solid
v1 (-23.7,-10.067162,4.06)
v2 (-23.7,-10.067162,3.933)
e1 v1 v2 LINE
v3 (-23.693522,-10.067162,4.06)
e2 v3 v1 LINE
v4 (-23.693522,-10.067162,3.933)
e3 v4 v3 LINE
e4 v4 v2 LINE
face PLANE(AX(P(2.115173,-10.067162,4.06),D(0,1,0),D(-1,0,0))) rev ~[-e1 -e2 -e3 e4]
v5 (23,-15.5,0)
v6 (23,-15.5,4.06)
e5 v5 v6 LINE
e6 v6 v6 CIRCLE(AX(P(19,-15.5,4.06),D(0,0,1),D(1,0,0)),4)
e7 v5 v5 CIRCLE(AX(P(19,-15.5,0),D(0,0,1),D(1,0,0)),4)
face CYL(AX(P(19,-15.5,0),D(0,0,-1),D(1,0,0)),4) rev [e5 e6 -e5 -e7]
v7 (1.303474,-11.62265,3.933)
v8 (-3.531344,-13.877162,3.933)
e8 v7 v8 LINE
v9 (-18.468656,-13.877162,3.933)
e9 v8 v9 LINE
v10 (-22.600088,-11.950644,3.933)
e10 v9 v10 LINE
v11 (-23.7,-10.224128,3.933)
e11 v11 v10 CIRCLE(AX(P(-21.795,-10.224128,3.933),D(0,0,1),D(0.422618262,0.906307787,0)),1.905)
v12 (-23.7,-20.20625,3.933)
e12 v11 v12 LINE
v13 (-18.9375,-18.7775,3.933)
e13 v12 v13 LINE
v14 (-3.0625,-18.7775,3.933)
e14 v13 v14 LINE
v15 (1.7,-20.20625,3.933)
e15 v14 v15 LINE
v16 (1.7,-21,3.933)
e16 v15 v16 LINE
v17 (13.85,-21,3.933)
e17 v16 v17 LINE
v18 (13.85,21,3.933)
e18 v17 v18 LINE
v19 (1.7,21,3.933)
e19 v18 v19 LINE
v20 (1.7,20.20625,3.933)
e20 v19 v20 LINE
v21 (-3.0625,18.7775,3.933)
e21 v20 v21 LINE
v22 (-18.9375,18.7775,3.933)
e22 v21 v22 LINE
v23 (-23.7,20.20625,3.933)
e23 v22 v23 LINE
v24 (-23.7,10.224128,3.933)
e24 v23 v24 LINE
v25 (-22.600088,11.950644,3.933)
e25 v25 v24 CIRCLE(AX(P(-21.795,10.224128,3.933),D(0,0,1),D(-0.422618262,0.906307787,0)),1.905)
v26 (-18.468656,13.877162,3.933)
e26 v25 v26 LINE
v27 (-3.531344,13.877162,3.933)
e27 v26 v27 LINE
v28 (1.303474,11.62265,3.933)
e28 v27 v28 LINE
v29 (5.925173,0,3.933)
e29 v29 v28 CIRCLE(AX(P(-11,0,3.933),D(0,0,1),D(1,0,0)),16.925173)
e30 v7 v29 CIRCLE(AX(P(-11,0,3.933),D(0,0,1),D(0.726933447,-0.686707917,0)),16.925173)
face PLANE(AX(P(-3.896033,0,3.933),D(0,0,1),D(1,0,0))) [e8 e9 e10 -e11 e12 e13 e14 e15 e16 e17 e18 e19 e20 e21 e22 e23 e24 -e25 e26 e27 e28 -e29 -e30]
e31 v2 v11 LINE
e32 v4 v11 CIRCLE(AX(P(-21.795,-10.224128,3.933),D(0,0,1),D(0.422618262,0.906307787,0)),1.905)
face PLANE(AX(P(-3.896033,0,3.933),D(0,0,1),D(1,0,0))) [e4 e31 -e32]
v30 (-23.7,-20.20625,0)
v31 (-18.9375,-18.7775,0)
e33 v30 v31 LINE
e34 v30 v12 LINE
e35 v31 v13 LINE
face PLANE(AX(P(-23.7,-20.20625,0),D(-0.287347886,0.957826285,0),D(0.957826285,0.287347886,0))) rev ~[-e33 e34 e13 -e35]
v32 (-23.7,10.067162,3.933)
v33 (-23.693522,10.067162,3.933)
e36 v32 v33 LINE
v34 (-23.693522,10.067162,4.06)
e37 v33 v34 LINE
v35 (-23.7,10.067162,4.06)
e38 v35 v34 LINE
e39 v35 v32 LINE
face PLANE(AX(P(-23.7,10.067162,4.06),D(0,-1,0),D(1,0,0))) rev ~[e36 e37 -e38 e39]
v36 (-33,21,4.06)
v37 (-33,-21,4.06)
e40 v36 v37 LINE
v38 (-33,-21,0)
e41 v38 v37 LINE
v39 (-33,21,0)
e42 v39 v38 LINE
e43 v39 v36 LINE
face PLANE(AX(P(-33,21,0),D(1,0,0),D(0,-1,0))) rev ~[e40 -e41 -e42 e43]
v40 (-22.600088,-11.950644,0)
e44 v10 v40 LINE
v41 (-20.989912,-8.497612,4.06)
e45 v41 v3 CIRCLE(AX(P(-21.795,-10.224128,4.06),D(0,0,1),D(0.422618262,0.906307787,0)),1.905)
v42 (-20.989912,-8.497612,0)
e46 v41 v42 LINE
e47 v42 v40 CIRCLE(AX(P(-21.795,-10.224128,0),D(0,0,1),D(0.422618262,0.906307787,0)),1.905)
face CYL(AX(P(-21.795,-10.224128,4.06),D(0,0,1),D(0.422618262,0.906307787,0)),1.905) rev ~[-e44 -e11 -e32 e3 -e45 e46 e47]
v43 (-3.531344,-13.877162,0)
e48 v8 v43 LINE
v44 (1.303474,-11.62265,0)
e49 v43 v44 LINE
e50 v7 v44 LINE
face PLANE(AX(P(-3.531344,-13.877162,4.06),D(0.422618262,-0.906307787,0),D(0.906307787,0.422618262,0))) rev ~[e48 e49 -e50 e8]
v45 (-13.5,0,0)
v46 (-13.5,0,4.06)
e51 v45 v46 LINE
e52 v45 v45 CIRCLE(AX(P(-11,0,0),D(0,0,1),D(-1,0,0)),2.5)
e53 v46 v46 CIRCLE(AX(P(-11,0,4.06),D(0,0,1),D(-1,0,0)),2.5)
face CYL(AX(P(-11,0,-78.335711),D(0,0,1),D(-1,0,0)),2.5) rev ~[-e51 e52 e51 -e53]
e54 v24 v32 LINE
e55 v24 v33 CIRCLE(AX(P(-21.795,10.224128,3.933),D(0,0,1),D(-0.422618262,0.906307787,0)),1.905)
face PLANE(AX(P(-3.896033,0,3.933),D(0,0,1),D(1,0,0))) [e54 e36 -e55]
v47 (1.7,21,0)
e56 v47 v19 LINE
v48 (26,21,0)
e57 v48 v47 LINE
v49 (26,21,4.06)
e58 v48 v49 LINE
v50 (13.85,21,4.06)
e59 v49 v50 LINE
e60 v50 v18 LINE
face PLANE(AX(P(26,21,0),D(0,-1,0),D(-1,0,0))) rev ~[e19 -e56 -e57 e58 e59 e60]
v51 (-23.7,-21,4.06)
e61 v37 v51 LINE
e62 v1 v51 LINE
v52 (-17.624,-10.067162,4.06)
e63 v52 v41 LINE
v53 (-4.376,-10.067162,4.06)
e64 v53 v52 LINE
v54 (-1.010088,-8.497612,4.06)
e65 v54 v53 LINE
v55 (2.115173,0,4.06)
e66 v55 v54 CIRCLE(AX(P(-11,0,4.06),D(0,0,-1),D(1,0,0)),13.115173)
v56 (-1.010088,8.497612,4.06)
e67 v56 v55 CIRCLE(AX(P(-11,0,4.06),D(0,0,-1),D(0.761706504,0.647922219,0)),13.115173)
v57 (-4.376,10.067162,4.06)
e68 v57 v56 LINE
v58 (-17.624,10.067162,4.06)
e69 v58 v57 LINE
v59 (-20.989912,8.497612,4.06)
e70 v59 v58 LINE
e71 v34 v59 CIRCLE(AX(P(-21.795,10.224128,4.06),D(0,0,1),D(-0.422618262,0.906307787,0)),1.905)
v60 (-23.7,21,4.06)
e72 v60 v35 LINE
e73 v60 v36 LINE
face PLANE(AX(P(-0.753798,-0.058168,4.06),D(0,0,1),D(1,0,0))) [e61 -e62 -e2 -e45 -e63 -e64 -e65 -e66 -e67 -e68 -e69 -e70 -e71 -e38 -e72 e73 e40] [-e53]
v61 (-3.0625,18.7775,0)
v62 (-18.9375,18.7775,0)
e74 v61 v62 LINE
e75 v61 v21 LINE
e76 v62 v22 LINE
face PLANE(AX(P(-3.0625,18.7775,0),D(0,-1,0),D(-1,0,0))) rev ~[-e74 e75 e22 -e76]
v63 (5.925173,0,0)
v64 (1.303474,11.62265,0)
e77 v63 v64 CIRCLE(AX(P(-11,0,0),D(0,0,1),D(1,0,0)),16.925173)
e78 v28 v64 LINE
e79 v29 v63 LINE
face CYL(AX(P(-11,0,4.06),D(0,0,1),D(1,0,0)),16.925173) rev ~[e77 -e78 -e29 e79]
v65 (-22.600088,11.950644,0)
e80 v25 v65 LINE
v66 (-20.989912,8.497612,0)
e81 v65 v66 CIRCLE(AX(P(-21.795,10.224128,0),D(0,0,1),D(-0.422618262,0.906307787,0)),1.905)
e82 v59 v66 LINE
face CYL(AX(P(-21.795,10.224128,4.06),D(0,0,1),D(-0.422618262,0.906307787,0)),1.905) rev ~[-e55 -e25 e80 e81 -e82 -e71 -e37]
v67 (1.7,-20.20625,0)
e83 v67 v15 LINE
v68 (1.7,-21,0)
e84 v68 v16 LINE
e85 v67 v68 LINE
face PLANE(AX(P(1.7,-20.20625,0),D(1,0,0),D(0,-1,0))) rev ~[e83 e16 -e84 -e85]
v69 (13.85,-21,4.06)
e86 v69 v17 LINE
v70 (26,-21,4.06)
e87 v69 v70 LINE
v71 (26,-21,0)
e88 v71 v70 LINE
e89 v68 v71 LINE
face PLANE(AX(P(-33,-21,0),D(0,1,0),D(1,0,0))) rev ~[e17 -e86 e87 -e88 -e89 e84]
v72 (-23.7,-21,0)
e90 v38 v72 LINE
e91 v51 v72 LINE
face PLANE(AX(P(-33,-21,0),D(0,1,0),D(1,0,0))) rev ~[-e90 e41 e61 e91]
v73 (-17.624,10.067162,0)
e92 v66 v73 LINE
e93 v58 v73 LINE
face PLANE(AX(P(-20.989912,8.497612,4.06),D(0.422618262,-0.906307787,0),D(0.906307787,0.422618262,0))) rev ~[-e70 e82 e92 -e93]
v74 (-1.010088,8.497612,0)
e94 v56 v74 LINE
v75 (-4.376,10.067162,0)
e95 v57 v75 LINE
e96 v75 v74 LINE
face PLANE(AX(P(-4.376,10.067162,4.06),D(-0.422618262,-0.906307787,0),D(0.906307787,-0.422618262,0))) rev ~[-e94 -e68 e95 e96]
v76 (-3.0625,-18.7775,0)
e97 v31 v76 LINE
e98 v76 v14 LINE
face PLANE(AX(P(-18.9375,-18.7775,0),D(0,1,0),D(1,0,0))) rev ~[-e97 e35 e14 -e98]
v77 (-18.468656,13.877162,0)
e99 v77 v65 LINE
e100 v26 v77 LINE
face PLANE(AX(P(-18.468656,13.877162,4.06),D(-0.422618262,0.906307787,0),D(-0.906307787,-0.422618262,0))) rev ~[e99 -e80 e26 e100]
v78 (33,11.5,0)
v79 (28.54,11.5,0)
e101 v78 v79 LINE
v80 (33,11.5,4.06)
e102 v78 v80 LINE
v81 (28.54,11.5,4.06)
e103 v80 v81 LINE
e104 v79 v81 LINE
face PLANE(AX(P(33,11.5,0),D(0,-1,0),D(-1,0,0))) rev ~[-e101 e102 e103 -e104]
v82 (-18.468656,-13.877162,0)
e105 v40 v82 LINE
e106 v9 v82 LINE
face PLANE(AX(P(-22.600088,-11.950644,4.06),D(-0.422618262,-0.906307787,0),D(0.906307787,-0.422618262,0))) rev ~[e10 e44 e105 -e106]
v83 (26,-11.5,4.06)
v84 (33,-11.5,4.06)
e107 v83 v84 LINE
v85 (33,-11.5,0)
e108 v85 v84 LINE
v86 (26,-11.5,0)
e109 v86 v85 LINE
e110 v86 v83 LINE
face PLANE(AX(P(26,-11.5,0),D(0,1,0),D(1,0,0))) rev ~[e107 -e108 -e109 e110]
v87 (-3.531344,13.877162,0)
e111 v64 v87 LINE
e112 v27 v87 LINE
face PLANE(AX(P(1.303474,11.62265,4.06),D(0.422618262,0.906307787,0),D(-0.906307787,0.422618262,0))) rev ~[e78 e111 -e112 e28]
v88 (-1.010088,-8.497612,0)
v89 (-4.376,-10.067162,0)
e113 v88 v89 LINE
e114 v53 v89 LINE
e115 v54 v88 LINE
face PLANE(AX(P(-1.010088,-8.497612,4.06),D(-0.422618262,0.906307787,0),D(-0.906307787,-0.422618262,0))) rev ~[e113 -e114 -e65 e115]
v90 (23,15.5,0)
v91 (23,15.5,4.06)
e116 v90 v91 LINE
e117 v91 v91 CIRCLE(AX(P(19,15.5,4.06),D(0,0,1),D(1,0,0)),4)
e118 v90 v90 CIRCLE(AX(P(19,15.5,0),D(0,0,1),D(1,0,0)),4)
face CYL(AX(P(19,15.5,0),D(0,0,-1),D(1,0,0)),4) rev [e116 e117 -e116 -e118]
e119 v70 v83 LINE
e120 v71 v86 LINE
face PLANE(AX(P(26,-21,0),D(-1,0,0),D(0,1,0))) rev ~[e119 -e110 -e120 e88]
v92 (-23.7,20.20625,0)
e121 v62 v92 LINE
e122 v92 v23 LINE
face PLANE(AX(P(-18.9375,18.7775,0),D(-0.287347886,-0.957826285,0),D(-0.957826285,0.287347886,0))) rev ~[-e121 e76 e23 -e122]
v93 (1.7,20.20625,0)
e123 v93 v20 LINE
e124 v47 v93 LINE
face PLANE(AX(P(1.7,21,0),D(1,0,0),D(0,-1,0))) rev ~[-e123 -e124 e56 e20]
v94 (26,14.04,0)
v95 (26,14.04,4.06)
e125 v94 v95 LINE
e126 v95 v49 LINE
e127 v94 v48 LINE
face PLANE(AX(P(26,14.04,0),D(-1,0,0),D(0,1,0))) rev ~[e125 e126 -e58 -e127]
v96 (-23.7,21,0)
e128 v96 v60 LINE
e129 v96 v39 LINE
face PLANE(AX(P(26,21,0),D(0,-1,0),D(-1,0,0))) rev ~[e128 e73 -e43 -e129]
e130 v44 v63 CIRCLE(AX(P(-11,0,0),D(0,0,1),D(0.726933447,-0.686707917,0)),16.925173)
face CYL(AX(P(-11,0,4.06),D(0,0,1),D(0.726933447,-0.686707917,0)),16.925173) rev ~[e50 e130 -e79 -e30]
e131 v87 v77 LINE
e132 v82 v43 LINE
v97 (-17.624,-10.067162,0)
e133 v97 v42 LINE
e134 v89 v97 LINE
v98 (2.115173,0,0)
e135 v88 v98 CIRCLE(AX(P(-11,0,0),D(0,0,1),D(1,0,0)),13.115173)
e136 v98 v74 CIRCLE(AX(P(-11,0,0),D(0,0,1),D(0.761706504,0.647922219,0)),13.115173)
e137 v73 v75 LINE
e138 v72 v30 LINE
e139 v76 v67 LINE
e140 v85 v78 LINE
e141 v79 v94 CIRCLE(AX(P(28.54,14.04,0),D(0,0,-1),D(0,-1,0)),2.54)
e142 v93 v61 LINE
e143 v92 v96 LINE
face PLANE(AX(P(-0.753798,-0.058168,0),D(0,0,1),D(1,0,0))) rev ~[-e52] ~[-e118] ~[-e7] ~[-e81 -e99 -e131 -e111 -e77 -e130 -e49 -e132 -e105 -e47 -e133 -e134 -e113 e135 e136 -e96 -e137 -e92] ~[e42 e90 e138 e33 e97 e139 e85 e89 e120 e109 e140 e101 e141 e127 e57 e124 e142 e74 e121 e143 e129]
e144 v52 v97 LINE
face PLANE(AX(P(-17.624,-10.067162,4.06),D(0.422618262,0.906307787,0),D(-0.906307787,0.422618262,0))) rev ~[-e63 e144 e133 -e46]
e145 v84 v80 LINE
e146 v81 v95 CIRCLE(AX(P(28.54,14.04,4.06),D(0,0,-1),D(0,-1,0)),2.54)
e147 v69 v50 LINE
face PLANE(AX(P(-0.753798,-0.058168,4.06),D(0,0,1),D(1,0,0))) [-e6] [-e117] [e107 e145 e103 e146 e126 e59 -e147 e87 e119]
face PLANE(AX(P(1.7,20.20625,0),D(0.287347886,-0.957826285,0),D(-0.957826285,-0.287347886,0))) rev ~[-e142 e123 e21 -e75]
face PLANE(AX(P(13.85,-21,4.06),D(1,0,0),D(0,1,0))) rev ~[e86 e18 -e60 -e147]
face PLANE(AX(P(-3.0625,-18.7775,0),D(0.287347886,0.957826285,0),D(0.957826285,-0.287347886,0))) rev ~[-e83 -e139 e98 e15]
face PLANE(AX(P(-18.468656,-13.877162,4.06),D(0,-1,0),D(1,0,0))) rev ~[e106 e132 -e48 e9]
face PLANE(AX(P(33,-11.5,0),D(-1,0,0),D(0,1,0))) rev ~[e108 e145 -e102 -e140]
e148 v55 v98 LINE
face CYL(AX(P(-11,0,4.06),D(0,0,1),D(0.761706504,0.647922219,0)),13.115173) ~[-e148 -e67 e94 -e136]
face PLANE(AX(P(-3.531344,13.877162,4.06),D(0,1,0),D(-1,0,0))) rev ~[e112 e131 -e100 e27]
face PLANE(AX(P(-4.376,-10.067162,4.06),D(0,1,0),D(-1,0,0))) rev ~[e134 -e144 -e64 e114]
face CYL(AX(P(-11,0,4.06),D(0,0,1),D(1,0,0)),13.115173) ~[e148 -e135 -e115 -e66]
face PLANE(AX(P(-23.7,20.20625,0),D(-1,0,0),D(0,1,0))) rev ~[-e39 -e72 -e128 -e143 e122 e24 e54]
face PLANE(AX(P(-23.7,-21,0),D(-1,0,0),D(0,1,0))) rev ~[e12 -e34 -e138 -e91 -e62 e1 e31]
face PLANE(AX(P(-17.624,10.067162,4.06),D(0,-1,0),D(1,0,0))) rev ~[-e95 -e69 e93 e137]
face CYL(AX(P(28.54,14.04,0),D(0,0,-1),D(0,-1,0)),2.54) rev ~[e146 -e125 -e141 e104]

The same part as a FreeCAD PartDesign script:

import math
import FreeCAD as App
import Part
import Sketcher
from FreeCAD import Vector
Q = App.Units.Quantity


def add_polygon(sketch, points):
    """Adds a closed chain of lines whose ends are joined by coincident constraints."""
    first, n = sketch.GeometryCount, len(points)
    for a, b in zip(points, points[1:] + points[:1]):
        sketch.addGeometry(Part.LineSegment(App.Vector(*a, 0), App.Vector(*b, 0)), False)
    for i in range(n):
        sketch.addConstraint(Sketcher.Constraint("Coincident", first + i, 2, first + (i + 1) % n, 1))

doc = App.newDocument("Part")
body = doc.addObject("PartDesign::Body", "Body")

# Sketch on XY plane
sketch1 = doc.addObject("Sketcher::SketchObject", "Sketch")
body.addObject(sketch1)
sketch1.AttachmentSupport = (doc.XY_Plane, [""])
sketch1.MapMode = "FlatFace"
sketch1.addGeometry([
    Part.LineSegment(Vector(26, 14, 0), Vector(26, 21, 0)),  # 0
    Part.LineSegment(Vector(26, 21, 0), Vector(-33, 21, 0)),  # 1
    Part.LineSegment(Vector(-33, 21, 0), Vector(-33, -21, 0)),  # 2
    Part.LineSegment(Vector(-33, -21, 0), Vector(26, -21, 0)),  # 3
    Part.LineSegment(Vector(26, -21, 0), Vector(26, -11.5, 0)),  # 4
    Part.LineSegment(Vector(26, -11.5, 0), Vector(33, -11.5, 0)),  # 5
    Part.LineSegment(Vector(33, -11.5, 0), Vector(33, 11.5, 0)),  # 6
    Part.LineSegment(Vector(33, 11.5, 0), Vector(28.5, 11.5, 0)),  # 7
    Part.ArcOfCircle(Part.Circle(Vector(28.5, 14, 0), Vector(0, 0, 1), 2.5), math.radians(180), math.radians(270)),  # 8
    Part.Circle(Vector(19, -15.5, 0), Vector(0, 0, 1), 4),  # 9
    Part.Circle(Vector(19, 15.5, 0), Vector(0, 0, 1), 4),  # 10
], False)
sketch1.addConstraint([
    Sketcher.Constraint("Coincident", 0, 2, 1, 1),
    Sketcher.Constraint("Coincident", 1, 2, 2, 1),
    Sketcher.Constraint("Coincident", 2, 2, 3, 1),
    Sketcher.Constraint("Coincident", 3, 2, 4, 1),
    Sketcher.Constraint("Coincident", 4, 2, 5, 1),
    Sketcher.Constraint("Coincident", 5, 2, 6, 1),
    Sketcher.Constraint("Coincident", 6, 2, 7, 1),
    Sketcher.Constraint("Tangent", 7, 2, 8, 2),
    Sketcher.Constraint("Tangent", 8, 1, 0, 1),
    Sketcher.Constraint("Vertical", 0),
    Sketcher.Constraint("Horizontal", 1),
    Sketcher.Constraint("Vertical", 2),
    Sketcher.Constraint("Horizontal", 3),
    Sketcher.Constraint("Vertical", 4),
    Sketcher.Constraint("Horizontal", 5),
    Sketcher.Constraint("Vertical", 6),
    Sketcher.Constraint("Horizontal", 7),
    Sketcher.Constraint("Equal", 9, 10),
    Sketcher.Constraint("Symmetric", 9, 3, 10, 3, -1),
    Sketcher.Constraint("Symmetric", 0, 2, 3, 2, -1),
    Sketcher.Constraint("Diameter", 9, Q("8 mm")),
    Sketcher.Constraint("DistanceX", 1, 2, 1, 1, Q("59 mm")),
    Sketcher.Constraint("DistanceX", 5, 1, 5, 2, Q("7 mm")),
    Sketcher.Constraint("DistanceY", 2, 2, 2, 1, Q("42 mm")),
    Sketcher.Constraint("DistanceY", 6, 1, 6, 2, Q("23 mm")),
    Sketcher.Constraint("Radius", 8, Q("2.54 mm")),
    Sketcher.Constraint("DistanceY", 4, 1, 4, 2, Q("9.5 mm")),
    Sketcher.Constraint("DistanceX", -1, 1, 9, 3, Q("19 mm")),
    Sketcher.Constraint("DistanceX", -1, 1, 0, 2, Q("26 mm")),
    Sketcher.Constraint("DistanceY", 9, 3, 10, 3, Q("31 mm")),
])
pad1 = doc.addObject("PartDesign::Pad", "Pad")
body.addObject(pad1)
pad1.Profile = sketch1
pad1.Length = 4.06

# Sketch on XY plane
sketch2 = doc.addObject("Sketcher::SketchObject", "Sketch001")
body.addObject(sketch2)
sketch2.AttachmentSupport = (doc.XY_Plane, [""])
sketch2.MapMode = "FlatFace"
sketch2.addGeometry(Part.Circle(Vector(-11, 0, 0), Vector(0, 0, 1), 2.5), False)
sketch2.addConstraint([
    Sketcher.Constraint("PointOnObject", 0, 3, -1),
    Sketcher.Constraint("Diameter", 0, Q("5 mm")),
    Sketcher.Constraint("DistanceX", 0, 3, -1, 1, Q("11 mm")),
])
doc.recompute()
hole = doc.addObject("PartDesign::Hole", "Hole")
body.addObject(hole)
hole.Profile = sketch2
hole.ThreadType = "None"
hole.Diameter = 5
hole.DepthType = "ThroughAll"
hole.Reversed = True

# Sketch on XY plane
sketch3 = doc.addObject("Sketcher::SketchObject", "Sketch002")
body.addObject(sketch3)
sketch3.AttachmentSupport = (doc.XY_Plane, [""])
sketch3.MapMode = "FlatFace"
add_polygon(sketch3, [(-23.7, 20.2), (-23.7, 21), (1.7, 21), (1.7, 20.2), (-3.1, 18.8), (-18.9, 18.8)])  # lines 0-5
add_polygon(sketch3, [(1.7, -21), (-23.7, -21), (-23.7, -20.2), (-18.9, -18.8), (-3.1, -18.8), (1.7, -20.2)])  # lines 6-11
sketch3.addConstraint([
    Sketcher.Constraint("Vertical", 0),
    Sketcher.Constraint("Horizontal", 1),
    Sketcher.Constraint("Vertical", 2),
    Sketcher.Constraint("Horizontal", 4),
    Sketcher.Constraint("Horizontal", 6),
    Sketcher.Constraint("Vertical", 7),
    Sketcher.Constraint("Horizontal", 9),
    Sketcher.Constraint("Vertical", 11),
    Sketcher.Constraint("Symmetric", 0, 2, 6, 2, -1),
    Sketcher.Constraint("Symmetric", 4, 2, 8, 2, -1),
    Sketcher.Constraint("Symmetric", 2, 2, 10, 2, -1),
    Sketcher.Constraint("Parallel", 3, 8),
    Sketcher.Constraint("Parallel", 5, 10),
    Sketcher.Constraint("Horizontal", 2, 2, 5, 2),
    Sketcher.Constraint("Horizontal", 7, 2, 10, 2),
    Sketcher.Constraint("DistanceX", 1, 1, 1, 2, Q("25.4 mm")),
    Sketcher.Constraint("DistanceY", -1, 1, 0, 2, Q("21 mm")),
    Sketcher.Constraint("DistanceX", 0, 2, -1, 1, Q("23.7 mm")),
    Sketcher.Constraint("DistanceX", 4, 2, 4, 1, Q("15.875 mm")),
    Sketcher.Constraint("DistanceY", 8, 2, 4, 2, Q("37.555 mm")),
    Sketcher.Constraint("DistanceY", 0, 1, 0, 2, Q("0.79375 mm")),
])
pocket1 = doc.addObject("PartDesign::Pocket", "Pocket")
body.addObject(pocket1)
pocket1.Profile = sketch3
pocket1.Length = 25.4
pocket1.Reversed = True

# Sketch on XY plane
sketch4 = doc.addObject("Sketcher::SketchObject", "Sketch003")
body.addObject(sketch4)
sketch4.AttachmentSupport = (doc.XY_Plane, [""])
sketch4.MapMode = "FlatFace"
sketch4.AttachmentOffset = App.Placement(Vector(0, 0, 4.06), App.Rotation())
sketch4.addGeometry([
    Part.ArcOfCircle(Part.Circle(Vector(-21.8, 10.2, 0), Vector(0, 0, 1), 1.9), math.radians(115), math.radians(295)),  # 0
    Part.LineSegment(Vector(-21, 8.5, 0), Vector(-17.6, 10.1, 0)),  # 1
    Part.LineSegment(Vector(-17.6, 10.1, 0), Vector(-4.4, 10.1, 0)),  # 2
    Part.LineSegment(Vector(-4.4, 10.1, 0), Vector(-1, 8.5, 0)),  # 3
    Part.ArcOfCircle(Part.Circle(Vector(-11, 0, 0), Vector(0, 0, 1), 13.1), math.radians(0), math.radians(40)),  # 4
    Part.ArcOfCircle(Part.Circle(Vector(-11, 0, 0), Vector(0, 0, 1), 13.1), math.radians(-40), math.radians(0)),  # 5
    Part.LineSegment(Vector(-1, -8.5, 0), Vector(-4.4, -10.1, 0)),  # 6
    Part.LineSegment(Vector(-4.4, -10.1, 0), Vector(-17.6, -10.1, 0)),  # 7
    Part.LineSegment(Vector(-17.6, -10.1, 0), Vector(-21, -8.5, 0)),  # 8
    Part.ArcOfCircle(Part.Circle(Vector(-21.8, -10.2, 0), Vector(0, 0, 1), 1.9), math.radians(65), math.radians(245)),  # 9
    Part.LineSegment(Vector(-22.6, -12, 0), Vector(-18.5, -13.9, 0)),  # 10
    Part.LineSegment(Vector(-18.5, -13.9, 0), Vector(-3.5, -13.9, 0)),  # 11
    Part.LineSegment(Vector(-3.5, -13.9, 0), Vector(1.3, -11.6, 0)),  # 12
    Part.ArcOfCircle(Part.Circle(Vector(-11, 0, 0), Vector(0, 0, 1), 16.9), math.radians(-43), math.radians(0)),  # 13
    Part.ArcOfCircle(Part.Circle(Vector(-11, 0, 0), Vector(0, 0, 1), 16.9), math.radians(0), math.radians(43)),  # 14
    Part.LineSegment(Vector(1.3, 11.6, 0), Vector(-3.5, 13.9, 0)),  # 15
    Part.LineSegment(Vector(-3.5, 13.9, 0), Vector(-18.5, 13.9, 0)),  # 16
    Part.LineSegment(Vector(-18.5, 13.9, 0), Vector(-22.6, 12, 0)),  # 17
], False)
sketch4.addConstraint([
    Sketcher.Constraint("Tangent", 0, 2, 1, 1),
    Sketcher.Constraint("Coincident", 1, 2, 2, 1),
    Sketcher.Constraint("Coincident", 2, 2, 3, 1),
    Sketcher.Constraint("Coincident", 3, 2, 4, 2),
    Sketcher.Constraint("Tangent", 4, 1, 5, 2),
    Sketcher.Constraint("Coincident", 5, 1, 6, 1),
    Sketcher.Constraint("Coincident", 6, 2, 7, 1),
    Sketcher.Constraint("Coincident", 7, 2, 8, 1),
    Sketcher.Constraint("Tangent", 8, 2, 9, 1),
    Sketcher.Constraint("Tangent", 9, 2, 10, 1),
    Sketcher.Constraint("Coincident", 10, 2, 11, 1),
    Sketcher.Constraint("Coincident", 11, 2, 12, 1),
    Sketcher.Constraint("Coincident", 12, 2, 13, 1),
    Sketcher.Constraint("Tangent", 13, 2, 14, 1),
    Sketcher.Constraint("Coincident", 14, 2, 15, 1),
    Sketcher.Constraint("Coincident", 15, 2, 16, 1),
    Sketcher.Constraint("Coincident", 16, 2, 17, 1),
    Sketcher.Constraint("Tangent", 17, 2, 0, 1),
    Sketcher.Constraint("Horizontal", 2),
    Sketcher.Constraint("Horizontal", 7),
    Sketcher.Constraint("Horizontal", 11),
    Sketcher.Constraint("Horizontal", 16),
    Sketcher.Constraint("Coincident", 13, 3, 4, 3),
    Sketcher.Constraint("Equal", 4, 5),
    Sketcher.Constraint("Equal", 0, 9),
    Sketcher.Constraint("Equal", 13, 14),
    Sketcher.Constraint("Symmetric", 0, 3, 9, 3, -1),
    Sketcher.Constraint("Symmetric", 3, 2, 5, 1, -1),
    Sketcher.Constraint("Symmetric", 2, 2, 6, 2, -1),
    Sketcher.Constraint("Symmetric", 11, 2, 15, 2, -1),
    Sketcher.Constraint("PointOnObject", 4, 1, -1),
    Sketcher.Constraint("PointOnObject", 13, 2, -1),
    Sketcher.Constraint("Parallel", 1, 6),
    Sketcher.Constraint("Parallel", 3, 8),
    Sketcher.Constraint("Parallel", 8, 10),
    Sketcher.Constraint("Parallel", 6, 12),
    Sketcher.Constraint("Parallel", 10, 15),
    Sketcher.Constraint("Parallel", 12, 17),
    Sketcher.Constraint("Horizontal", 0, 2, 3, 2),
    Sketcher.Constraint("Angle", 1, Q("25 deg")),
    Sketcher.Constraint("DistanceX", 4, 3, -1, 1, Q("11 mm")),
    Sketcher.Constraint("Radius", 0, Q("1.905 mm")),
    Sketcher.Constraint("DistanceX", 2, 1, 2, 2, Q("13.247999 mm")),
    Sketcher.Constraint("DistanceY", 10, 2, 7, 2, Q("3.81 mm")),
    Sketcher.Constraint("DistanceX", 4, 1, 13, 2, Q("3.81 mm")),
    Sketcher.Constraint("DistanceX", 0, 3, -1, 1, Q("21.795 mm")),
    Sketcher.Constraint("DistanceX", 1, 2, -1, 1, Q("17.624 mm")),
    Sketcher.Constraint("Radius", 4, Q("13.115173 mm")),
    Sketcher.Constraint("DistanceX", 12, 2, 4, 1, Q("0.811699 mm")),
])
pocket2 = doc.addObject("PartDesign::Pocket", "Pocket001")
body.addObject(pocket2)
pocket2.Profile = sketch4
pocket2.Length = 25.4

# Sketch on XY plane
sketch5 = doc.addObject("Sketcher::SketchObject", "Sketch004")
body.addObject(sketch5)
sketch5.AttachmentSupport = (doc.XY_Plane, [""])
sketch5.MapMode = "FlatFace"
sketch5.AttachmentOffset = App.Placement(Vector(0, 0, 4.06), App.Rotation())
add_polygon(sketch5, [(14, 21), (-24, 21), (-24, 10), (2, 10), (2, -10), (-24, -10), (-24, -21), (14, -21)])  # lines 0-7
sketch5.addConstraint([
    Sketcher.Constraint("Horizontal", 0),
    Sketcher.Constraint("Vertical", 1),
    Sketcher.Constraint("Horizontal", 2),
    Sketcher.Constraint("Vertical", 3),
    Sketcher.Constraint("Horizontal", 4),
    Sketcher.Constraint("Vertical", 5),
    Sketcher.Constraint("Horizontal", 6),
    Sketcher.Constraint("Vertical", 7),
    Sketcher.Constraint("Symmetric", 1, 2, 4, 2, -1),
    Sketcher.Constraint("Equal", 1, 5),
    Sketcher.Constraint("DistanceY", 7, 1, 7, 2, Q("42 mm")),
    Sketcher.Constraint("DistanceX", 0, 2, 0, 1, Q("37.55 mm")),
    Sketcher.Constraint("DistanceX", 0, 2, -1, 1, Q("23.7 mm")),
    Sketcher.Constraint("DistanceX", 2, 1, 2, 2, Q("25.815173 mm")),
    Sketcher.Constraint("DistanceY", 1, 2, 1, 1, Q("10.932838 mm")),
])
pocket3 = doc.addObject("PartDesign::Pocket", "Pocket002")
body.addObject(pocket3)
pocket3.Profile = sketch5
pocket3.Length = 0.127

doc.recompute()
